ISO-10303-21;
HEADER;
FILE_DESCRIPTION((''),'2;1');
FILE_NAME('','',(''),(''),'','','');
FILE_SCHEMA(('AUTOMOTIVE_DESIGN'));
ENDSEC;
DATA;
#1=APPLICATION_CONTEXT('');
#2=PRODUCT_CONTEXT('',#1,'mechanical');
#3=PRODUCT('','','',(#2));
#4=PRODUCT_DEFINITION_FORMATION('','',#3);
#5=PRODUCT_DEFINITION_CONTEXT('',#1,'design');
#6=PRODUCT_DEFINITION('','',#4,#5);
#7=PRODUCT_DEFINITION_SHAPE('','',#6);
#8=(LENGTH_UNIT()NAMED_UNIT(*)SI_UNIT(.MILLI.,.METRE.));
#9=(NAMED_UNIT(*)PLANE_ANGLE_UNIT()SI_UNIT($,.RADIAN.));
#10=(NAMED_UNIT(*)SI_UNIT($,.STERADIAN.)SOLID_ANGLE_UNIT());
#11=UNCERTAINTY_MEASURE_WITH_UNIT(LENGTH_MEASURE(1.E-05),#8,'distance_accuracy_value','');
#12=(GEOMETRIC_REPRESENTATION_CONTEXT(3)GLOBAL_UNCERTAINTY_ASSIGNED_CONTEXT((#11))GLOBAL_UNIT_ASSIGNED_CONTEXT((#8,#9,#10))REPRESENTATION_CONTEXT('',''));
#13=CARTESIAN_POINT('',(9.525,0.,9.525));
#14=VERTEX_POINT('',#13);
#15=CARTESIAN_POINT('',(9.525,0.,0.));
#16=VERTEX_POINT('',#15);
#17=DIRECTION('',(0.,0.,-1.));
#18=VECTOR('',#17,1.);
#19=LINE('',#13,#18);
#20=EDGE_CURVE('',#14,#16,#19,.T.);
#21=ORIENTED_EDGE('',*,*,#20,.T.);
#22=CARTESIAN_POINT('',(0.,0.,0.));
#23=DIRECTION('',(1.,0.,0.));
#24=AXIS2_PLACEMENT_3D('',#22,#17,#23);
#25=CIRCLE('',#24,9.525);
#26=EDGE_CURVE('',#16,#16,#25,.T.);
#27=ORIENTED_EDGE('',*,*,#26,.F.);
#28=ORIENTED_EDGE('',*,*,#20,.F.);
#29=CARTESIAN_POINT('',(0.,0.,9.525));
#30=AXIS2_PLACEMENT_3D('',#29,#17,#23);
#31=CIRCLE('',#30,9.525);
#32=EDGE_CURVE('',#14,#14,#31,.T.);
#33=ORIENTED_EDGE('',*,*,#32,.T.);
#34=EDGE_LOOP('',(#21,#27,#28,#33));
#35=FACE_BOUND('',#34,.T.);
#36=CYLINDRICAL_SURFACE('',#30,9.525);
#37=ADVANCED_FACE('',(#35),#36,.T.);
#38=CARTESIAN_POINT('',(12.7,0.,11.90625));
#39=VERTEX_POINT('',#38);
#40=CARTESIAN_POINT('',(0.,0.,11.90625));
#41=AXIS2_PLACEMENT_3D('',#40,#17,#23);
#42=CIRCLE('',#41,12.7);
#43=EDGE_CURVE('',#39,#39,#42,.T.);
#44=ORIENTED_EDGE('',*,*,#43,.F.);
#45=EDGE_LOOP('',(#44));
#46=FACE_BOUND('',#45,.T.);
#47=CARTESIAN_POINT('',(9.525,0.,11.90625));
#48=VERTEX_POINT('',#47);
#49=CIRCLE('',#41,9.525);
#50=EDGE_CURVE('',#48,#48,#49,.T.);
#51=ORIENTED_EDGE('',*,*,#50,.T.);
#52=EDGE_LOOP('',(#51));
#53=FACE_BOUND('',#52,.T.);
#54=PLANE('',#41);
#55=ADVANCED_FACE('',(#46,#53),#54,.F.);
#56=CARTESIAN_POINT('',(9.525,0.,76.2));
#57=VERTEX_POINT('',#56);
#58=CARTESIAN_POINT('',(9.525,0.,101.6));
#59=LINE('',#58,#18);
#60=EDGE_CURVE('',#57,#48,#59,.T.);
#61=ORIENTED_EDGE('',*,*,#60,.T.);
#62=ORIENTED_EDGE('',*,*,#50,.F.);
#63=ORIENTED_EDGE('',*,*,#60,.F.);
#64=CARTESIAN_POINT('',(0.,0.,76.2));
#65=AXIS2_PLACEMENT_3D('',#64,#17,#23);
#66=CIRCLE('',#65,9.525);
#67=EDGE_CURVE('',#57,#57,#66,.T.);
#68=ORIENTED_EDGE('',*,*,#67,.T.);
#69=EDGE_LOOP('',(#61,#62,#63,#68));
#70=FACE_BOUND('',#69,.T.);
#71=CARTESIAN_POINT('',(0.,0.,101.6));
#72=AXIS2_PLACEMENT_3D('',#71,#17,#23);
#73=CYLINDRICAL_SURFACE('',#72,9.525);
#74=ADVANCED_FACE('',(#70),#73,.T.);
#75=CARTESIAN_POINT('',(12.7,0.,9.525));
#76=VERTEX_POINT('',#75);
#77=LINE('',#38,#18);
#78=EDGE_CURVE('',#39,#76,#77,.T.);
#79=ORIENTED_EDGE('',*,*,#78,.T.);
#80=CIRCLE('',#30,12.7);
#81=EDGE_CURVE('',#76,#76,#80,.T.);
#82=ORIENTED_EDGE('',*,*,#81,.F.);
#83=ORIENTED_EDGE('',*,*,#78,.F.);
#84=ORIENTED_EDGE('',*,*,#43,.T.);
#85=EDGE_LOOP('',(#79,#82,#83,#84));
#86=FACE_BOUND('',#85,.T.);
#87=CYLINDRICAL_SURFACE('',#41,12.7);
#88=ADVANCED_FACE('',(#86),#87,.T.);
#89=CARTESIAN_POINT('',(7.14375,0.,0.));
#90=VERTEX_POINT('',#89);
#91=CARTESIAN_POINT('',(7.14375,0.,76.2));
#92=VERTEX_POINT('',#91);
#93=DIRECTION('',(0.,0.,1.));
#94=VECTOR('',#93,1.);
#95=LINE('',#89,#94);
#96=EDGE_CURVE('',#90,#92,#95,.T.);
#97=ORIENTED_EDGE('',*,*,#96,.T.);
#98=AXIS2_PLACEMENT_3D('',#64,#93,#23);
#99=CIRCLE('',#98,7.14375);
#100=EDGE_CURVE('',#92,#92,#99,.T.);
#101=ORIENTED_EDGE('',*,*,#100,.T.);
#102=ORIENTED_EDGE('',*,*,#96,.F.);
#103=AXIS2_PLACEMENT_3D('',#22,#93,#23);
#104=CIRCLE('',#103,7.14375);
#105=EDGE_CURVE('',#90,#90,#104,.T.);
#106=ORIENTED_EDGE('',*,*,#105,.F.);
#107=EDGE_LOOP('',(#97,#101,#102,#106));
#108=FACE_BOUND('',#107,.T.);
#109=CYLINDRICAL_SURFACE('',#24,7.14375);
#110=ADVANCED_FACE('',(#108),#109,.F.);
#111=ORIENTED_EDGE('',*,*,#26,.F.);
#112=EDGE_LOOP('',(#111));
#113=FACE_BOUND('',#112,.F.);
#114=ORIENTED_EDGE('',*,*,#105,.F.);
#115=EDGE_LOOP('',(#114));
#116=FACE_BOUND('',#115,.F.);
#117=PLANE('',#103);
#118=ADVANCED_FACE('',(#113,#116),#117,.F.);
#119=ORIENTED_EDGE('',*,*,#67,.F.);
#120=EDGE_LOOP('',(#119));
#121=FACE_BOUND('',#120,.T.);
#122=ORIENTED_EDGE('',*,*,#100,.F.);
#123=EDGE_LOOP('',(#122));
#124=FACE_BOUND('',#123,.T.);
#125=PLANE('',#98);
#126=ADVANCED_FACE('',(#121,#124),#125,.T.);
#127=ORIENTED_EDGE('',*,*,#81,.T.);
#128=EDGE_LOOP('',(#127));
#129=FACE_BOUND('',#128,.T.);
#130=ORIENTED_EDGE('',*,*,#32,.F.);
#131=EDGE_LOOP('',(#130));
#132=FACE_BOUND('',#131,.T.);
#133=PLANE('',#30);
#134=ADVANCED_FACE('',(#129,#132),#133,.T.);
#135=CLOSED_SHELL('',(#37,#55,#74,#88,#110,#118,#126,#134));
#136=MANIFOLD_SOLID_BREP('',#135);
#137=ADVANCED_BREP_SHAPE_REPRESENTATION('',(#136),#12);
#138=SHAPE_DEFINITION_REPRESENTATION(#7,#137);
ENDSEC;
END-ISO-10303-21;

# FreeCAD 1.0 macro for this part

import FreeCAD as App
import Part
import Sketcher
Q = App.Units.Quantity

doc = App.newDocument("Part")
params = doc.addObject("Spreadsheet::Sheet", "Params")
for row, (alias, value) in enumerate([
    ("sketch1_diameter", "1.5 in"),
    ("sketch1_diameter2", "0.5625 in"),
    ("pad1_length", "3 in"),
    ("sketch2_width", "1 in"),
    ("sketch2_height", "4 in"),
    ("sketch2_width2", "0.125 in"),
    ("sketch2_height2", "0.375 in"),
    ("sketch2_height3", "3.53125 in"),
    ("groove_angle", "360 deg"),
], start=1):
    params.set(f"A{row}", alias)
    params.set(f"B{row}", "=" + value)
    params.setAlias(f"B{row}", alias)

body = doc.addObject("PartDesign::Body", "Body")

sketch1 = body.newObject("Sketcher::SketchObject", "Sketch")
sketch1.AttachmentSupport = (doc.getObject("XY_Plane"), [""])
sketch1.MapMode = "FlatFace"
sketch1.addGeometry([
    Part.Circle(App.Vector(0, 0, 0), App.Vector(0, 0, 1), 19),
    Part.Circle(App.Vector(0, 0, 0), App.Vector(0, 0, 1), 7),
], False)
sketch1.addConstraint([
    Sketcher.Constraint("Coincident", 0, 3, -1, 1),
    Sketcher.Constraint("Coincident", 1, 3, -1, 1),
    Sketcher.Constraint("Diameter", 0, Q("1.5 in")),
    Sketcher.Constraint("Diameter", 1, Q("0.5625 in")),
])
sketch1.setExpression("Constraints[2]", "Params.sketch1_diameter")
sketch1.setExpression("Constraints[3]", "Params.sketch1_diameter2")
pad1 = body.newObject("PartDesign::Pad", "Pad")
pad1.Profile = sketch1
pad1.setExpression("Length", "Params.pad1_length")

sketch2 = body.newObject("Sketcher::SketchObject", "Sketch001")
sketch2.AttachmentSupport = (doc.getObject("XZ_Plane"), [""])
sketch2.MapMode = "FlatFace"
sketch2.addGeometry([
    Part.LineSegment(App.Vector(9.5, 9.5, 0), App.Vector(9.5, 0, 0)),
    Part.LineSegment(App.Vector(9.5, 0, 0), App.Vector(34.9, 0, 0)),
    Part.LineSegment(App.Vector(34.9, 0, 0), App.Vector(34.9, 101.6, 0)),
    Part.LineSegment(App.Vector(34.9, 101.6, 0), App.Vector(9.5, 101.6, 0)),
    Part.LineSegment(App.Vector(9.5, 101.6, 0), App.Vector(9.5, 11.9, 0)),
    Part.LineSegment(App.Vector(9.5, 11.9, 0), App.Vector(12.7, 11.9, 0)),
    Part.LineSegment(App.Vector(12.7, 11.9, 0), App.Vector(12.7, 9.5, 0)),
    Part.LineSegment(App.Vector(12.7, 9.5, 0), App.Vector(9.5, 9.5, 0)),
], False)
sketch2.addConstraint([
    Sketcher.Constraint("Coincident", 0, 2, 1, 1),
    Sketcher.Constraint("Coincident", 1, 2, 2, 1),
    Sketcher.Constraint("Coincident", 2, 2, 3, 1),
    Sketcher.Constraint("Coincident", 3, 2, 4, 1),
    Sketcher.Constraint("Coincident", 4, 2, 5, 1),
    Sketcher.Constraint("Coincident", 5, 2, 6, 1),
    Sketcher.Constraint("Coincident", 6, 2, 7, 1),
    Sketcher.Constraint("Coincident", 7, 2, 0, 1),
    Sketcher.Constraint("Vertical", 0),
    Sketcher.Constraint("Horizontal", 1),
    Sketcher.Constraint("Vertical", 2),
    Sketcher.Constraint("Horizontal", 3),
    Sketcher.Constraint("Vertical", 4),
    Sketcher.Constraint("Horizontal", 5),
    Sketcher.Constraint("Vertical", 6),
    Sketcher.Constraint("Horizontal", 7),
    Sketcher.Constraint("PointOnObject", 0, 2, -1),
    Sketcher.Constraint("Vertical", 0, 2, 3, 2),
    Sketcher.Constraint("DistanceX", 1, 1, 1, 2, Q("1 in")),
    Sketcher.Constraint("DistanceY", 2, 1, 2, 2, Q("4 in")),
    Sketcher.Constraint("DistanceX", -1, 1, 5, 2, Q("0.5 in")),
    Sketcher.Constraint("DistanceX", 5, 1, 5, 2, Q("0.125 in")),
    Sketcher.Constraint("DistanceY", 0, 2, 0, 1, Q("0.375 in")),
    Sketcher.Constraint("DistanceY", 4, 2, 4, 1, Q("3.53125 in")),
])
sketch2.setExpression("Constraints[18]", "Params.sketch2_width")
sketch2.setExpression("Constraints[19]", "Params.sketch2_height")
sketch2.setExpression("Constraints[21]", "Params.sketch2_width2")
sketch2.setExpression("Constraints[22]", "Params.sketch2_height2")
sketch2.setExpression("Constraints[23]", "Params.sketch2_height3")
groove = body.newObject("PartDesign::Groove", "Groove")
groove.Profile = sketch2
groove.ReferenceAxis = (sketch2, ["V_Axis"])
groove.setExpression("Angle", "Params.groove_angle")

doc.recompute()
